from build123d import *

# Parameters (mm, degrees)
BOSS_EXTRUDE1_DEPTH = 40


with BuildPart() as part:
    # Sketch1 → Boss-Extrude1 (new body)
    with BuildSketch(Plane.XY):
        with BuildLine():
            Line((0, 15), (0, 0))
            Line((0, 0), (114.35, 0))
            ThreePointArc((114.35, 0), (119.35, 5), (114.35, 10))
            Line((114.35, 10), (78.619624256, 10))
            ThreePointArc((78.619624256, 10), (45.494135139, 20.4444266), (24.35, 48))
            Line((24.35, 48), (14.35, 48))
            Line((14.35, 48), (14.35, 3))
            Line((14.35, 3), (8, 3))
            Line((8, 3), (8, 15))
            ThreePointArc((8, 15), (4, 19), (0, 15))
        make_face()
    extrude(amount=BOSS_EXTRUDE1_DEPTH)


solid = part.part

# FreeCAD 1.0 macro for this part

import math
import FreeCAD as App
import Part
import Sketcher
Q = App.Units.Quantity

doc = App.newDocument("Part")
body = doc.addObject("PartDesign::Body", "Body")

sketch1 = body.newObject("Sketcher::SketchObject", "Sketch")
sketch1.AttachmentSupport = (doc.getObject("XY_Plane"), [""])
sketch1.MapMode = "FlatFace"
sketch1.addGeometry(Part.LineSegment(App.Vector(0, 15, 0), App.Vector(0, 0, 0)), False)
sketch1.addGeometry(Part.LineSegment(App.Vector(0, 0, 0), App.Vector(114.3, 0, 0)), False)
sketch1.addGeometry(Part.ArcOfCircle(Part.Circle(App.Vector(114.3, 5, 0), App.Vector(0, 0, 1), 5), math.radians(-90), math.radians(90)), False)
sketch1.addGeometry(Part.LineSegment(App.Vector(114.3, 10, 0), App.Vector(78.6, 10, 0)), False)
sketch1.addGeometry(Part.ArcOfCircle(Part.Circle(App.Vector(78.6, 67.8, 0), App.Vector(0, 0, 1), 57.8), math.radians(-160), math.radians(-90)), False)
sketch1.addGeometry(Part.LineSegment(App.Vector(24.4, 48, 0), App.Vector(14.3, 48, 0)), False)
sketch1.addGeometry(Part.LineSegment(App.Vector(14.3, 48, 0), App.Vector(14.3, 3, 0)), False)
sketch1.addGeometry(Part.LineSegment(App.Vector(14.3, 3, 0), App.Vector(8, 3, 0)), False)
sketch1.addGeometry(Part.LineSegment(App.Vector(8, 3, 0), App.Vector(8, 15, 0)), False)
sketch1.addGeometry(Part.ArcOfCircle(Part.Circle(App.Vector(4, 15, 0), App.Vector(0, 0, 1), 4), math.radians(0), math.radians(180)), False)
sketch1.addConstraint(Sketcher.Constraint("Coincident", 0, 2, 1, 1))
sketch1.addConstraint(Sketcher.Constraint("Tangent", 1, 2, 2, 1))
sketch1.addConstraint(Sketcher.Constraint("Tangent", 2, 2, 3, 1))
sketch1.addConstraint(Sketcher.Constraint("Tangent", 3, 2, 4, 2))
sketch1.addConstraint(Sketcher.Constraint("Coincident", 4, 1, 5, 1))
sketch1.addConstraint(Sketcher.Constraint("Coincident", 5, 2, 6, 1))
sketch1.addConstraint(Sketcher.Constraint("Coincident", 6, 2, 7, 1))
sketch1.addConstraint(Sketcher.Constraint("Coincident", 7, 2, 8, 1))
sketch1.addConstraint(Sketcher.Constraint("Tangent", 8, 2, 9, 1))
sketch1.addConstraint(Sketcher.Constraint("Tangent", 9, 2, 0, 1))
sketch1.addConstraint(Sketcher.Constraint("Vertical", 0))
sketch1.addConstraint(Sketcher.Constraint("Horizontal", 1))
sketch1.addConstraint(Sketcher.Constraint("Horizontal", 3))
sketch1.addConstraint(Sketcher.Constraint("Horizontal", 5))
sketch1.addConstraint(Sketcher.Constraint("Vertical", 6))
sketch1.addConstraint(Sketcher.Constraint("Horizontal", 7))
sketch1.addConstraint(Sketcher.Constraint("Vertical", 8))
sketch1.addConstraint(Sketcher.Constraint("Coincident", 0, 2, -1, 1))
sketch1.addConstraint(Sketcher.Constraint("Radius", 2, Q("5 mm")))
sketch1.addConstraint(Sketcher.Constraint("Radius", 9, Q("4 mm")))
sketch1.addConstraint(Sketcher.Constraint("DistanceX", 5, 2, 5, 1, Q("10 mm")))
sketch1.addConstraint(Sketcher.Constraint("DistanceY", 0, 2, 0, 1, Q("15 mm")))
sketch1.addConstraint(Sketcher.Constraint("DistanceY", 6, 2, 6, 1, Q("45 mm")))
sketch1.addConstraint(Sketcher.Constraint("DistanceY", 8, 1, 8, 2, Q("12 mm")))
sketch1.addConstraint(Sketcher.Constraint("DistanceX", 4, 1, 2, 2, Q("90 mm")))
sketch1.addConstraint(Sketcher.Constraint("DistanceX", 1, 1, 1, 2, Q("114.35 mm")))
sketch1.addConstraint(Sketcher.Constraint("Radius", 4, Q("57.752528 mm")))
pad1 = body.newObject("PartDesign::Pad", "Pad")
pad1.Profile = sketch1
pad1.Length = 40

doc.recompute()
